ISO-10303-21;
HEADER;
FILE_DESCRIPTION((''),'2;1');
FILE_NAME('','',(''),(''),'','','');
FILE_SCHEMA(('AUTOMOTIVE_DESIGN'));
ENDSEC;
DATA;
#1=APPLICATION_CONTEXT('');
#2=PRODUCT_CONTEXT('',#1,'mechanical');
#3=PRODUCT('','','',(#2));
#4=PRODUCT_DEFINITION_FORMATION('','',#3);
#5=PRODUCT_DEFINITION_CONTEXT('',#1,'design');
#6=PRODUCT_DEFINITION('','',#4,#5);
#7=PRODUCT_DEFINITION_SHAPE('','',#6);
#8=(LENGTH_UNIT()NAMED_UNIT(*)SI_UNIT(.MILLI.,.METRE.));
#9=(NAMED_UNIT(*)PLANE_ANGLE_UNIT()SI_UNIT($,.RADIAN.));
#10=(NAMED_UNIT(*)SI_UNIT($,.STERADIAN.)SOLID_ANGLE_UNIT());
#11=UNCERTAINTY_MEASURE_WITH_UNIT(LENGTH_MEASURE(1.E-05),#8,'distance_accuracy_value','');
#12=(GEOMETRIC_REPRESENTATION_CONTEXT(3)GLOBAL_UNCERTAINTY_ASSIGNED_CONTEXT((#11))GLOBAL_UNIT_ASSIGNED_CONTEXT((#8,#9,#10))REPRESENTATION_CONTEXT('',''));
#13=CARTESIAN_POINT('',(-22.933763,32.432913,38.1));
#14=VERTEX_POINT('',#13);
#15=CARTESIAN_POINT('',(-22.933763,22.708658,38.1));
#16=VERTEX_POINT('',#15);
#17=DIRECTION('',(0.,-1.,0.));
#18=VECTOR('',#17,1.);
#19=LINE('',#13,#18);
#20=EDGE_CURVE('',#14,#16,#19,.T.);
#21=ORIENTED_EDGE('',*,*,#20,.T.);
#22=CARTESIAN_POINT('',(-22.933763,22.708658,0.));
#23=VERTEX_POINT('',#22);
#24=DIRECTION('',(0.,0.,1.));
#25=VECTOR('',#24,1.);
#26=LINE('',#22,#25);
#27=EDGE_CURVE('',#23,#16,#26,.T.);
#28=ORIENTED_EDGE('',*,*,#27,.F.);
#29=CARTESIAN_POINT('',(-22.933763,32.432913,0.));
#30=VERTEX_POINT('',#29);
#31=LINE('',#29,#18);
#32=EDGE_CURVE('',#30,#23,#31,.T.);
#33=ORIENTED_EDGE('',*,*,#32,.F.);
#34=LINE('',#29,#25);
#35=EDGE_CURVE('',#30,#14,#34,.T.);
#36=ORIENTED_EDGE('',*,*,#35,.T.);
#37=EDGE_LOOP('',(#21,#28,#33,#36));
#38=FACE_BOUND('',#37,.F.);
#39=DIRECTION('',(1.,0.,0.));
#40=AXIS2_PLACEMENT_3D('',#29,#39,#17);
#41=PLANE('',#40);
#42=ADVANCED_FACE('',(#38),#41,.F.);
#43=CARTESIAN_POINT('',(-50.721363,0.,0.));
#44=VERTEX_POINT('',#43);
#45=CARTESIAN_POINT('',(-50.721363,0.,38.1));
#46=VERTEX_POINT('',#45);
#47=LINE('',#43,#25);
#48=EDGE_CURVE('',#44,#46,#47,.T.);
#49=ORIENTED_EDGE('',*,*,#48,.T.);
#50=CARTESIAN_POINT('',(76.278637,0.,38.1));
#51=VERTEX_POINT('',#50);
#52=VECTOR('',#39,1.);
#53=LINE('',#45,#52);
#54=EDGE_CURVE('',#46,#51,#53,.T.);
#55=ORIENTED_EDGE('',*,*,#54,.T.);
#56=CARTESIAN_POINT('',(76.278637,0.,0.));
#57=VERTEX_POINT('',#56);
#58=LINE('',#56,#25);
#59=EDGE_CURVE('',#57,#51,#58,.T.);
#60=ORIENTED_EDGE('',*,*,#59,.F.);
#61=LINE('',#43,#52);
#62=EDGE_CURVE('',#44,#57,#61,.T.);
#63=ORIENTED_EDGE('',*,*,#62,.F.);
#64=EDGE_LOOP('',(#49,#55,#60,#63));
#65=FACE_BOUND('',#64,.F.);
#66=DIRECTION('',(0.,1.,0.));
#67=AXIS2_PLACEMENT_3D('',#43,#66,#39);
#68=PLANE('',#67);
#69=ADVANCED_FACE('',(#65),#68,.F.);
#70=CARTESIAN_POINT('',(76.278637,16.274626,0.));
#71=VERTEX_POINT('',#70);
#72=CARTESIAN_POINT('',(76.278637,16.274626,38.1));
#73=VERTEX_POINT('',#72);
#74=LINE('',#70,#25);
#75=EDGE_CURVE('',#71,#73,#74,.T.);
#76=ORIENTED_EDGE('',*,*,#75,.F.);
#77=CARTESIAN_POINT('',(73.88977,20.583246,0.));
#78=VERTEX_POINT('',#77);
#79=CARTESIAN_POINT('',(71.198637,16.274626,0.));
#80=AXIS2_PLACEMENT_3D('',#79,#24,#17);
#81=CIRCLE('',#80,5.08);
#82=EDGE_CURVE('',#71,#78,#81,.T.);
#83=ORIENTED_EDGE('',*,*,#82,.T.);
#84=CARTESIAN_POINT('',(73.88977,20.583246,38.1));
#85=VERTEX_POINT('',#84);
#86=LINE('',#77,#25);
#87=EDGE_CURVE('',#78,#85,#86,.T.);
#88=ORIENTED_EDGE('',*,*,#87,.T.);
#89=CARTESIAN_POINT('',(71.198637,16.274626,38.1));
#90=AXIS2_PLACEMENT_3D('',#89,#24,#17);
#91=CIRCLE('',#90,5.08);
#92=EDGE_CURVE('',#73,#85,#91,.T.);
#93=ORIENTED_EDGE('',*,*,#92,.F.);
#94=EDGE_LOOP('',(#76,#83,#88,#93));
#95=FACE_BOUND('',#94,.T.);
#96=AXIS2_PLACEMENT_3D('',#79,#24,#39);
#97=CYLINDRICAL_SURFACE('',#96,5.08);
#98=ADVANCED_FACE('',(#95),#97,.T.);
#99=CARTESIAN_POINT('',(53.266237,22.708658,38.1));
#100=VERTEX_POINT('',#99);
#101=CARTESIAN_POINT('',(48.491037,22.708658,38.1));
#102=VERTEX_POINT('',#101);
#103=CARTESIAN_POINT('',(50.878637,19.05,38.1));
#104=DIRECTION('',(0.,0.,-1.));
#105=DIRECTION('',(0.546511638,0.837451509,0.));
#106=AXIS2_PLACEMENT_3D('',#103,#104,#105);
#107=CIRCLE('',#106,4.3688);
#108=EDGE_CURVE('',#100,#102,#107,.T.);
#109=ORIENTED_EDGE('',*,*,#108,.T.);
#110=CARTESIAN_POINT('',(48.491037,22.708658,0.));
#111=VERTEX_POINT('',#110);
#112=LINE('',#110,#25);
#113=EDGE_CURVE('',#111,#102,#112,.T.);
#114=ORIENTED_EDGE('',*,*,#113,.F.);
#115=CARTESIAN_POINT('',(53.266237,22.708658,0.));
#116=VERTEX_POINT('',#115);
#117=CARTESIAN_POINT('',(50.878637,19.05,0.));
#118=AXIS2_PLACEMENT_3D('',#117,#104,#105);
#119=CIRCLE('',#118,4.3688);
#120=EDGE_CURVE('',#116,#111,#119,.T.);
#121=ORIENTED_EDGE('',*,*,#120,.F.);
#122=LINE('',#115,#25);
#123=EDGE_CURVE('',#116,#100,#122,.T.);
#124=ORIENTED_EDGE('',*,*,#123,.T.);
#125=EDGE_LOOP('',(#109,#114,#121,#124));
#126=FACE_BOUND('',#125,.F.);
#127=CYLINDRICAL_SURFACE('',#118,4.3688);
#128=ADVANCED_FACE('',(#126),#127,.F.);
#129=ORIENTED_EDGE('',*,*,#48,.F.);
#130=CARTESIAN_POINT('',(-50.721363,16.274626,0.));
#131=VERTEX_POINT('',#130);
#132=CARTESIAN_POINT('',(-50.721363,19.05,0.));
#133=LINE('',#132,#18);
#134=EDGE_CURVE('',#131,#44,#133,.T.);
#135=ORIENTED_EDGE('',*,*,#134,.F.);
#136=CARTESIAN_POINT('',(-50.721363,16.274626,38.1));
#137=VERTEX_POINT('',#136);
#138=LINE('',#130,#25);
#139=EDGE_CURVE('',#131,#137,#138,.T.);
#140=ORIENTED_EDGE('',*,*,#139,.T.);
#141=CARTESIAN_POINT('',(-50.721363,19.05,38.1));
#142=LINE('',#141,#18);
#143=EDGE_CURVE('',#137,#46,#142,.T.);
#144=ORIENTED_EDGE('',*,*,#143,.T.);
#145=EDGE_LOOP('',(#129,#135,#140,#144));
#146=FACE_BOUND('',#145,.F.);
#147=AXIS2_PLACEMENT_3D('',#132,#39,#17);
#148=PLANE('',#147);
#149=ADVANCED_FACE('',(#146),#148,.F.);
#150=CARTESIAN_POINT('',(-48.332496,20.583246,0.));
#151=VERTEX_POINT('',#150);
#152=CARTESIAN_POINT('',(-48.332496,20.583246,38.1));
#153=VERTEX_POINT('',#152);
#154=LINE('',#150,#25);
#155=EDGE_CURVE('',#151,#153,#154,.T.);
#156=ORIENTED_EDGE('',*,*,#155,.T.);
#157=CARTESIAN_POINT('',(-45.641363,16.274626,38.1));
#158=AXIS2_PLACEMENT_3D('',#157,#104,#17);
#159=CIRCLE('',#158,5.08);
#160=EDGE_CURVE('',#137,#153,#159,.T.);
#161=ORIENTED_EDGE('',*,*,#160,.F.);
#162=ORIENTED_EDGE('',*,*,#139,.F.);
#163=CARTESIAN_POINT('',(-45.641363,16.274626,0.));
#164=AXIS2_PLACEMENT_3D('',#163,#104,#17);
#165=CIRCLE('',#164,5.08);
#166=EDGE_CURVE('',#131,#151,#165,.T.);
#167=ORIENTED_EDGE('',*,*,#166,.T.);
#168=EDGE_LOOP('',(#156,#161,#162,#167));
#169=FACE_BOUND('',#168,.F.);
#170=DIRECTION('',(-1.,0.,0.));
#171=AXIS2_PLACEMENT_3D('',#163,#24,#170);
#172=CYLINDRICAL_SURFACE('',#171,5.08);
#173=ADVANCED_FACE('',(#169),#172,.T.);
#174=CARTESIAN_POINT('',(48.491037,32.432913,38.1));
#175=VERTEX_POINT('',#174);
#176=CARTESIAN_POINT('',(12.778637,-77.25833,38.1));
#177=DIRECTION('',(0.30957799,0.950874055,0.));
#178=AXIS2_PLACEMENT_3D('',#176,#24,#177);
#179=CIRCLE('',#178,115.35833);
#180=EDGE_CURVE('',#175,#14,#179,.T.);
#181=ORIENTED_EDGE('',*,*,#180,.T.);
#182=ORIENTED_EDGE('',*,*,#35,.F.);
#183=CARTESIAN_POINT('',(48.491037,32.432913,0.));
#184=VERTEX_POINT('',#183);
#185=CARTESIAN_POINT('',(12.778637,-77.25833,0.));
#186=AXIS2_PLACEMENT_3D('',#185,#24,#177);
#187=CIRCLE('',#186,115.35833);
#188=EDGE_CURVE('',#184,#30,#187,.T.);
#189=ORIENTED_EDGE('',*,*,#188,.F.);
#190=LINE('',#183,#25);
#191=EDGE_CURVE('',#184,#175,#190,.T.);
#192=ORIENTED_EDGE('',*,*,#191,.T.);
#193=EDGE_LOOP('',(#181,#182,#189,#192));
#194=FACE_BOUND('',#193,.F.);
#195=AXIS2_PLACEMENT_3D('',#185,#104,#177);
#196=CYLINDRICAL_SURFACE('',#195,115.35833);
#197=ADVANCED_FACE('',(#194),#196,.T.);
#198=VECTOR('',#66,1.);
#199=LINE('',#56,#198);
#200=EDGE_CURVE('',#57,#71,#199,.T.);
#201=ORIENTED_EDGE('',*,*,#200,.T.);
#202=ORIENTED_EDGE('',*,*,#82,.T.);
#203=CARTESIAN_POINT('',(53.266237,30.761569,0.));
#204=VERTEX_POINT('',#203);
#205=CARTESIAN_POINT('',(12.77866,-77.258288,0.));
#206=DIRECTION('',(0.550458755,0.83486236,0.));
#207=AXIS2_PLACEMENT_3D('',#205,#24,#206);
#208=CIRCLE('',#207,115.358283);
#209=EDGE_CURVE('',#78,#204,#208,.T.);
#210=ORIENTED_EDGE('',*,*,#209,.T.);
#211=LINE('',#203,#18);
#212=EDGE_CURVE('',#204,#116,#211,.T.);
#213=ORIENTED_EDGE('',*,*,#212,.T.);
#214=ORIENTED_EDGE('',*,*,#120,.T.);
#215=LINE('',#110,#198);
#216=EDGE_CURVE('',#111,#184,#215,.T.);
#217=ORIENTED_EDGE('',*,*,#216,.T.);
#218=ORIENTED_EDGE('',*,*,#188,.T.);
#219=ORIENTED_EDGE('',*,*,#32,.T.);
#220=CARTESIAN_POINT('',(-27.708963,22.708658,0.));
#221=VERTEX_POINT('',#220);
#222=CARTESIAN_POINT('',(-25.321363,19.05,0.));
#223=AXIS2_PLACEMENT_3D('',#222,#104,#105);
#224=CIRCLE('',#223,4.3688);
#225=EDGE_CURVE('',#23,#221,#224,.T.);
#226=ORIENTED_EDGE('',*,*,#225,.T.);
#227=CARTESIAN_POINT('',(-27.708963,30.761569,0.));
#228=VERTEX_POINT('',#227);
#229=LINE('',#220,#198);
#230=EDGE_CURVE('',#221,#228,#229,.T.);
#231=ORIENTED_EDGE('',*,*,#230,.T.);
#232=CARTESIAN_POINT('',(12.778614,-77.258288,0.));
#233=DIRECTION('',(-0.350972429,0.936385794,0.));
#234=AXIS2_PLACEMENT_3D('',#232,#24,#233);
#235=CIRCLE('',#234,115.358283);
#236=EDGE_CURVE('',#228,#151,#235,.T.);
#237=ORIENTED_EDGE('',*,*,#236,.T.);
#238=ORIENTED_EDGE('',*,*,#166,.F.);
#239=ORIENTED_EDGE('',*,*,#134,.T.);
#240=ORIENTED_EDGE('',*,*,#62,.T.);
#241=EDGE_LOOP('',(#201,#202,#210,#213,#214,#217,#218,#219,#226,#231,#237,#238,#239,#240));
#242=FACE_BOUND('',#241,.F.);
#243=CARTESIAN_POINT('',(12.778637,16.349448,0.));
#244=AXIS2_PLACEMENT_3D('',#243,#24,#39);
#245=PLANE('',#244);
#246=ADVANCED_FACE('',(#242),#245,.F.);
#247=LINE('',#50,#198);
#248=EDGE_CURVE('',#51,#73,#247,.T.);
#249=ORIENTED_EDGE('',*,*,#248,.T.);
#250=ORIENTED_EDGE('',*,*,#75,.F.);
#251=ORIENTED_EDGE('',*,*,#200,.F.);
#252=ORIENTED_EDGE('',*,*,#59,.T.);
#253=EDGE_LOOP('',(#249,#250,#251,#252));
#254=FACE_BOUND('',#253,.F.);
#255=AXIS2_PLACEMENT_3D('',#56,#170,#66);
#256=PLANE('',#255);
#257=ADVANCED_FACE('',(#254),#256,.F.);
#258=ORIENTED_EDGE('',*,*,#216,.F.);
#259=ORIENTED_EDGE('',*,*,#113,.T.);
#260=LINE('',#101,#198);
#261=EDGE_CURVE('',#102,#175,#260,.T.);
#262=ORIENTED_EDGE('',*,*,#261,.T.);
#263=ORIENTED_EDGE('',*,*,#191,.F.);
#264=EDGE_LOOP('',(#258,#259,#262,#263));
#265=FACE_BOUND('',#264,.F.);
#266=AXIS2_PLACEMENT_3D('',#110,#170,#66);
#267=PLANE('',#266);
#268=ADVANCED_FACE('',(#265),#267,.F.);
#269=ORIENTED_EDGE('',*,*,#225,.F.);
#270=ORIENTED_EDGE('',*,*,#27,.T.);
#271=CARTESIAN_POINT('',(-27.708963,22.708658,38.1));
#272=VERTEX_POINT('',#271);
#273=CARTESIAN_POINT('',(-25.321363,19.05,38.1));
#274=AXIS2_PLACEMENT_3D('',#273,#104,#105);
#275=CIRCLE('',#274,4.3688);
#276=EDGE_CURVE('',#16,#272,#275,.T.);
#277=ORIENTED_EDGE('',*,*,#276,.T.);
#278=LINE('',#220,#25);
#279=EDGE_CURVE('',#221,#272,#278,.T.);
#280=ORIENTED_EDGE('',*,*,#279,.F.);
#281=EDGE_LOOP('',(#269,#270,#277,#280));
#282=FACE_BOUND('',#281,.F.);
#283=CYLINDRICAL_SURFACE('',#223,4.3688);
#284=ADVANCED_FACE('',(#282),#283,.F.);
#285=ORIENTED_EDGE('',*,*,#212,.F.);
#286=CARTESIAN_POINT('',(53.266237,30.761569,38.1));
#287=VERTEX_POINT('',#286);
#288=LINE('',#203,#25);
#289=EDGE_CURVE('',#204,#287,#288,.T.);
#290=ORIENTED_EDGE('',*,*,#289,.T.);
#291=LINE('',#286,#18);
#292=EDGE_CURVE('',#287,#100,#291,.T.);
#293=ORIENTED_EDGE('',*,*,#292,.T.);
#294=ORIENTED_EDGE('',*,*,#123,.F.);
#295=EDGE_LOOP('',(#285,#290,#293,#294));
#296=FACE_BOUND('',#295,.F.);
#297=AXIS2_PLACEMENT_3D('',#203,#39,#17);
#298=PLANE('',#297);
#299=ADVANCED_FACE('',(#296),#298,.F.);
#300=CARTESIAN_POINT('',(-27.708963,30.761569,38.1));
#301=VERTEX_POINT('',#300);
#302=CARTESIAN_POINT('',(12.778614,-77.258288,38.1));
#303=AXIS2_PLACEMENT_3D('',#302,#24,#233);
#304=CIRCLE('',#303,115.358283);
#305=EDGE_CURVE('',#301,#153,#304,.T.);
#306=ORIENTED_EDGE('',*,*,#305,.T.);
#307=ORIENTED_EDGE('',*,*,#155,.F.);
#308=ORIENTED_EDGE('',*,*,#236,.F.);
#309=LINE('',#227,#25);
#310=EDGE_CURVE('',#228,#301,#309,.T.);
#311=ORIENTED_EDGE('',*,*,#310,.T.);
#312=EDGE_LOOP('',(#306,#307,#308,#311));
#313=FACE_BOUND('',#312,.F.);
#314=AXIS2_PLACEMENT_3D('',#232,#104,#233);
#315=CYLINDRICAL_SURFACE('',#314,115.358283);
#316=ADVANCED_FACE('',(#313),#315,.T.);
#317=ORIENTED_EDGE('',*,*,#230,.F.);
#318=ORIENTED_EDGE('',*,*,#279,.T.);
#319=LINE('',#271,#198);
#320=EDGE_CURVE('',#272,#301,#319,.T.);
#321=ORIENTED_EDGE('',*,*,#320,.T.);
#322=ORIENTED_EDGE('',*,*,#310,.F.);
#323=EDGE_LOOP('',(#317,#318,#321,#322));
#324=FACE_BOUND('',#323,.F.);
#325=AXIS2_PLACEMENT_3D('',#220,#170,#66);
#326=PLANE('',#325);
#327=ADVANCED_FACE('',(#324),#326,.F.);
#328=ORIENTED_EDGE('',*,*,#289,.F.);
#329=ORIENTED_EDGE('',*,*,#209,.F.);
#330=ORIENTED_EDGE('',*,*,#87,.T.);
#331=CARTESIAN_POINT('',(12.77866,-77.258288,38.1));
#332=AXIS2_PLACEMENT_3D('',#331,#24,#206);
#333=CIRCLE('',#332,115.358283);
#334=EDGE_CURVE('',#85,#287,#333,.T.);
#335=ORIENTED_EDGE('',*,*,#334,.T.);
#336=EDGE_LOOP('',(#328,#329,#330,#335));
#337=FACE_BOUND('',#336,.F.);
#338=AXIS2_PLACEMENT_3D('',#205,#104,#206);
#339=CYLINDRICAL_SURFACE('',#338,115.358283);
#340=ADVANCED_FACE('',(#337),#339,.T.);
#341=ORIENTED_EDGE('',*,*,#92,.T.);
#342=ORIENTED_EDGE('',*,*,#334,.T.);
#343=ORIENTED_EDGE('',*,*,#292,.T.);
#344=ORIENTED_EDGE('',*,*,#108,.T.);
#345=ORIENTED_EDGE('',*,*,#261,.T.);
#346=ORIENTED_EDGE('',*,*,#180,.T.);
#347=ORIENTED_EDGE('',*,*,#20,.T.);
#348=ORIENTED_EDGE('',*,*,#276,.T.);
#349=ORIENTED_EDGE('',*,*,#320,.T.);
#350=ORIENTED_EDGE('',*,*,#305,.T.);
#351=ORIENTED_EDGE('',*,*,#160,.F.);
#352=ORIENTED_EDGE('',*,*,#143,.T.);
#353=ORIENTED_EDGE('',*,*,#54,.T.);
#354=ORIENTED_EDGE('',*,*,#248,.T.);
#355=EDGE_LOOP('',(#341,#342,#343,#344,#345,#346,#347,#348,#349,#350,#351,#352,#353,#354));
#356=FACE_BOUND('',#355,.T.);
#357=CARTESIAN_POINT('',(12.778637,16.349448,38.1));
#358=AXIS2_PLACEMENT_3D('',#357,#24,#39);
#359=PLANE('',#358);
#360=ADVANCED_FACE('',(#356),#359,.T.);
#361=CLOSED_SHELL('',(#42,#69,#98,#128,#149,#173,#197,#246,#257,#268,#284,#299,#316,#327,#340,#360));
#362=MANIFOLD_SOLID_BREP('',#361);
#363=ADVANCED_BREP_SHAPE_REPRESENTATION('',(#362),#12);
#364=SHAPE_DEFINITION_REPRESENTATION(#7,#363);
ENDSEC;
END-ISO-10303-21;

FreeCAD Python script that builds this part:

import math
import FreeCAD as App
import Part
import Sketcher

V = App.Vector
Q = App.Units.Quantity


def edges_at(feature, points):
    """Names of the edges that pass closest to the given points."""
    edges = feature.Shape.Edges
    near = lambda p: min(range(len(edges)), key=lambda i: edges[i].distToShape(Part.Vertex(*p))[0])
    return sorted({f"Edge{near(p) + 1}" for p in points})

doc = App.newDocument("Part")
body = doc.addObject("PartDesign::Body", "Body")

# Sketch on XY plane
sketch1 = doc.addObject("Sketcher::SketchObject", "Sketch")
body.addObject(sketch1)
sketch1.AttachmentSupport = (doc.XY_Plane, [""])
sketch1.MapMode = "FlatFace"
sketch1.addGeometry([
    Part.LineSegment(V(-50.7, 19.1, 0), V(-50.7, 0, 0)),  # 0
    Part.LineSegment(V(-50.7, 0, 0), V(76.3, 0, 0)),  # 1
    Part.LineSegment(V(76.3, 0, 0), V(76.3, 19.1, 0)),  # 2
    Part.ArcOfCircle(Part.Circle(V(12.8, -77.3, 0), V(0, 0, 1), 115.4), math.radians(56.6), math.radians(69.45)),  # 3
    Part.LineSegment(V(53.3, 30.8, 0), V(53.3, 22.7, 0)),  # 4
    Part.ArcOfCircle(Part.Circle(V(50.9, 19, 0), V(0, 0, 1), 4.4), math.radians(123), math.radians(417)),  # 5
    Part.LineSegment(V(48.5, 22.7, 0), V(48.5, 32.4, 0)),  # 6
    Part.ArcOfCircle(Part.Circle(V(12.8, -77.3, 0), V(0, 0, 1), 115.4), math.radians(72), math.radians(108)),  # 7
    Part.LineSegment(V(-22.9, 32.4, 0), V(-22.9, 22.7, 0)),  # 8
    Part.ArcOfCircle(Part.Circle(V(-25.3, 19, 0), V(0, 0, 1), 4.4), math.radians(123), math.radians(417)),  # 9
    Part.LineSegment(V(-27.7, 22.7, 0), V(-27.7, 30.8, 0)),  # 10
    Part.ArcOfCircle(Part.Circle(V(12.8, -77.3, 0), V(0, 0, 1), 115.4), math.radians(110.55), math.radians(123.4)),  # 11
], False)
sketch1.addConstraint([
    Sketcher.Constraint("Coincident", 0, 2, 1, 1),
    Sketcher.Constraint("Coincident", 1, 2, 2, 1),
    Sketcher.Constraint("Coincident", 2, 2, 3, 1),
    Sketcher.Constraint("Coincident", 3, 2, 4, 1),
    Sketcher.Constraint("Coincident", 4, 2, 5, 2),
    Sketcher.Constraint("Coincident", 5, 1, 6, 1),
    Sketcher.Constraint("Coincident", 6, 2, 7, 1),
    Sketcher.Constraint("Coincident", 7, 2, 8, 1),
    Sketcher.Constraint("Coincident", 8, 2, 9, 2),
    Sketcher.Constraint("Coincident", 9, 1, 10, 1),
    Sketcher.Constraint("Coincident", 10, 2, 11, 1),
    Sketcher.Constraint("Coincident", 11, 2, 0, 1),
    Sketcher.Constraint("Vertical", 0),
    Sketcher.Constraint("Horizontal", 1),
    Sketcher.Constraint("Vertical", 2),
    Sketcher.Constraint("Vertical", 4),
    Sketcher.Constraint("Vertical", 6),
    Sketcher.Constraint("Vertical", 8),
    Sketcher.Constraint("Vertical", 10),
    Sketcher.Constraint("Equal", 5, 9),
    Sketcher.Constraint("Equal", 3, 11),
    Sketcher.Constraint("PointOnObject", 0, 2, -1),
    Sketcher.Constraint("Horizontal", 5, 3, 9, 3),
    Sketcher.Constraint("Horizontal", 3, 3, 11, 3),
    Sketcher.Constraint("Horizontal", 9, 3, 2, 2),
    Sketcher.Constraint("Horizontal", 4, 2, 5, 1),
    Sketcher.Constraint("Horizontal", 6, 2, 7, 2),
    Sketcher.Constraint("Horizontal", 5, 1, 8, 2),
    Sketcher.Constraint("Horizontal", 8, 2, 9, 1),
    Sketcher.Constraint("Horizontal", 3, 2, 10, 2),
    Sketcher.Constraint("Horizontal", 2, 2, 11, 2),
    Sketcher.Constraint("DistanceX", 1, 1, 1, 2, Q("5 in")),
    Sketcher.Constraint("Radius", 5, Q("0.172 in")),
    Sketcher.Constraint("DistanceX", 9, 3, 5, 3, Q("3 in")),
    Sketcher.Constraint("DistanceY", 0, 2, 0, 1, Q("0.75 in")),
    Sketcher.Constraint("Radius", 7, Q("115.35833 mm")),
    Sketcher.Constraint("DistanceX", 5, 3, 3, 2, Q("0.094 in")),
    Sketcher.Constraint("Radius", 3, Q("115.358283 mm")),
    Sketcher.Constraint("DistanceY", 4, 2, 4, 1, Q("8.052911 mm")),
    Sketcher.Constraint("DistanceY", 6, 1, 6, 2, Q("9.724255 mm")),
    Sketcher.Constraint("DistanceX", -1, 1, 3, 3, Q("12.77866 mm")),
])
pad1 = doc.addObject("PartDesign::Pad", "Pad")
body.addObject(pad1)
pad1.Profile = sketch1
pad1.Length = Q("1.5 in")
doc.recompute()

fillet = doc.addObject("PartDesign::Fillet", "Fillet")
body.addObject(fillet)
fillet.Base = (pad1, edges_at(pad1, [(-50.721, 19.05, 19.05)]))
fillet.Radius = Q("0.2 in")
doc.recompute()

fillet2 = doc.addObject("PartDesign::Fillet", "Fillet001")
body.addObject(fillet2)
fillet2.Base = (fillet, edges_at(fillet, [(76.279, 19.05, 19.05)]))
fillet2.Radius = Q("0.2 in")

doc.recompute()
